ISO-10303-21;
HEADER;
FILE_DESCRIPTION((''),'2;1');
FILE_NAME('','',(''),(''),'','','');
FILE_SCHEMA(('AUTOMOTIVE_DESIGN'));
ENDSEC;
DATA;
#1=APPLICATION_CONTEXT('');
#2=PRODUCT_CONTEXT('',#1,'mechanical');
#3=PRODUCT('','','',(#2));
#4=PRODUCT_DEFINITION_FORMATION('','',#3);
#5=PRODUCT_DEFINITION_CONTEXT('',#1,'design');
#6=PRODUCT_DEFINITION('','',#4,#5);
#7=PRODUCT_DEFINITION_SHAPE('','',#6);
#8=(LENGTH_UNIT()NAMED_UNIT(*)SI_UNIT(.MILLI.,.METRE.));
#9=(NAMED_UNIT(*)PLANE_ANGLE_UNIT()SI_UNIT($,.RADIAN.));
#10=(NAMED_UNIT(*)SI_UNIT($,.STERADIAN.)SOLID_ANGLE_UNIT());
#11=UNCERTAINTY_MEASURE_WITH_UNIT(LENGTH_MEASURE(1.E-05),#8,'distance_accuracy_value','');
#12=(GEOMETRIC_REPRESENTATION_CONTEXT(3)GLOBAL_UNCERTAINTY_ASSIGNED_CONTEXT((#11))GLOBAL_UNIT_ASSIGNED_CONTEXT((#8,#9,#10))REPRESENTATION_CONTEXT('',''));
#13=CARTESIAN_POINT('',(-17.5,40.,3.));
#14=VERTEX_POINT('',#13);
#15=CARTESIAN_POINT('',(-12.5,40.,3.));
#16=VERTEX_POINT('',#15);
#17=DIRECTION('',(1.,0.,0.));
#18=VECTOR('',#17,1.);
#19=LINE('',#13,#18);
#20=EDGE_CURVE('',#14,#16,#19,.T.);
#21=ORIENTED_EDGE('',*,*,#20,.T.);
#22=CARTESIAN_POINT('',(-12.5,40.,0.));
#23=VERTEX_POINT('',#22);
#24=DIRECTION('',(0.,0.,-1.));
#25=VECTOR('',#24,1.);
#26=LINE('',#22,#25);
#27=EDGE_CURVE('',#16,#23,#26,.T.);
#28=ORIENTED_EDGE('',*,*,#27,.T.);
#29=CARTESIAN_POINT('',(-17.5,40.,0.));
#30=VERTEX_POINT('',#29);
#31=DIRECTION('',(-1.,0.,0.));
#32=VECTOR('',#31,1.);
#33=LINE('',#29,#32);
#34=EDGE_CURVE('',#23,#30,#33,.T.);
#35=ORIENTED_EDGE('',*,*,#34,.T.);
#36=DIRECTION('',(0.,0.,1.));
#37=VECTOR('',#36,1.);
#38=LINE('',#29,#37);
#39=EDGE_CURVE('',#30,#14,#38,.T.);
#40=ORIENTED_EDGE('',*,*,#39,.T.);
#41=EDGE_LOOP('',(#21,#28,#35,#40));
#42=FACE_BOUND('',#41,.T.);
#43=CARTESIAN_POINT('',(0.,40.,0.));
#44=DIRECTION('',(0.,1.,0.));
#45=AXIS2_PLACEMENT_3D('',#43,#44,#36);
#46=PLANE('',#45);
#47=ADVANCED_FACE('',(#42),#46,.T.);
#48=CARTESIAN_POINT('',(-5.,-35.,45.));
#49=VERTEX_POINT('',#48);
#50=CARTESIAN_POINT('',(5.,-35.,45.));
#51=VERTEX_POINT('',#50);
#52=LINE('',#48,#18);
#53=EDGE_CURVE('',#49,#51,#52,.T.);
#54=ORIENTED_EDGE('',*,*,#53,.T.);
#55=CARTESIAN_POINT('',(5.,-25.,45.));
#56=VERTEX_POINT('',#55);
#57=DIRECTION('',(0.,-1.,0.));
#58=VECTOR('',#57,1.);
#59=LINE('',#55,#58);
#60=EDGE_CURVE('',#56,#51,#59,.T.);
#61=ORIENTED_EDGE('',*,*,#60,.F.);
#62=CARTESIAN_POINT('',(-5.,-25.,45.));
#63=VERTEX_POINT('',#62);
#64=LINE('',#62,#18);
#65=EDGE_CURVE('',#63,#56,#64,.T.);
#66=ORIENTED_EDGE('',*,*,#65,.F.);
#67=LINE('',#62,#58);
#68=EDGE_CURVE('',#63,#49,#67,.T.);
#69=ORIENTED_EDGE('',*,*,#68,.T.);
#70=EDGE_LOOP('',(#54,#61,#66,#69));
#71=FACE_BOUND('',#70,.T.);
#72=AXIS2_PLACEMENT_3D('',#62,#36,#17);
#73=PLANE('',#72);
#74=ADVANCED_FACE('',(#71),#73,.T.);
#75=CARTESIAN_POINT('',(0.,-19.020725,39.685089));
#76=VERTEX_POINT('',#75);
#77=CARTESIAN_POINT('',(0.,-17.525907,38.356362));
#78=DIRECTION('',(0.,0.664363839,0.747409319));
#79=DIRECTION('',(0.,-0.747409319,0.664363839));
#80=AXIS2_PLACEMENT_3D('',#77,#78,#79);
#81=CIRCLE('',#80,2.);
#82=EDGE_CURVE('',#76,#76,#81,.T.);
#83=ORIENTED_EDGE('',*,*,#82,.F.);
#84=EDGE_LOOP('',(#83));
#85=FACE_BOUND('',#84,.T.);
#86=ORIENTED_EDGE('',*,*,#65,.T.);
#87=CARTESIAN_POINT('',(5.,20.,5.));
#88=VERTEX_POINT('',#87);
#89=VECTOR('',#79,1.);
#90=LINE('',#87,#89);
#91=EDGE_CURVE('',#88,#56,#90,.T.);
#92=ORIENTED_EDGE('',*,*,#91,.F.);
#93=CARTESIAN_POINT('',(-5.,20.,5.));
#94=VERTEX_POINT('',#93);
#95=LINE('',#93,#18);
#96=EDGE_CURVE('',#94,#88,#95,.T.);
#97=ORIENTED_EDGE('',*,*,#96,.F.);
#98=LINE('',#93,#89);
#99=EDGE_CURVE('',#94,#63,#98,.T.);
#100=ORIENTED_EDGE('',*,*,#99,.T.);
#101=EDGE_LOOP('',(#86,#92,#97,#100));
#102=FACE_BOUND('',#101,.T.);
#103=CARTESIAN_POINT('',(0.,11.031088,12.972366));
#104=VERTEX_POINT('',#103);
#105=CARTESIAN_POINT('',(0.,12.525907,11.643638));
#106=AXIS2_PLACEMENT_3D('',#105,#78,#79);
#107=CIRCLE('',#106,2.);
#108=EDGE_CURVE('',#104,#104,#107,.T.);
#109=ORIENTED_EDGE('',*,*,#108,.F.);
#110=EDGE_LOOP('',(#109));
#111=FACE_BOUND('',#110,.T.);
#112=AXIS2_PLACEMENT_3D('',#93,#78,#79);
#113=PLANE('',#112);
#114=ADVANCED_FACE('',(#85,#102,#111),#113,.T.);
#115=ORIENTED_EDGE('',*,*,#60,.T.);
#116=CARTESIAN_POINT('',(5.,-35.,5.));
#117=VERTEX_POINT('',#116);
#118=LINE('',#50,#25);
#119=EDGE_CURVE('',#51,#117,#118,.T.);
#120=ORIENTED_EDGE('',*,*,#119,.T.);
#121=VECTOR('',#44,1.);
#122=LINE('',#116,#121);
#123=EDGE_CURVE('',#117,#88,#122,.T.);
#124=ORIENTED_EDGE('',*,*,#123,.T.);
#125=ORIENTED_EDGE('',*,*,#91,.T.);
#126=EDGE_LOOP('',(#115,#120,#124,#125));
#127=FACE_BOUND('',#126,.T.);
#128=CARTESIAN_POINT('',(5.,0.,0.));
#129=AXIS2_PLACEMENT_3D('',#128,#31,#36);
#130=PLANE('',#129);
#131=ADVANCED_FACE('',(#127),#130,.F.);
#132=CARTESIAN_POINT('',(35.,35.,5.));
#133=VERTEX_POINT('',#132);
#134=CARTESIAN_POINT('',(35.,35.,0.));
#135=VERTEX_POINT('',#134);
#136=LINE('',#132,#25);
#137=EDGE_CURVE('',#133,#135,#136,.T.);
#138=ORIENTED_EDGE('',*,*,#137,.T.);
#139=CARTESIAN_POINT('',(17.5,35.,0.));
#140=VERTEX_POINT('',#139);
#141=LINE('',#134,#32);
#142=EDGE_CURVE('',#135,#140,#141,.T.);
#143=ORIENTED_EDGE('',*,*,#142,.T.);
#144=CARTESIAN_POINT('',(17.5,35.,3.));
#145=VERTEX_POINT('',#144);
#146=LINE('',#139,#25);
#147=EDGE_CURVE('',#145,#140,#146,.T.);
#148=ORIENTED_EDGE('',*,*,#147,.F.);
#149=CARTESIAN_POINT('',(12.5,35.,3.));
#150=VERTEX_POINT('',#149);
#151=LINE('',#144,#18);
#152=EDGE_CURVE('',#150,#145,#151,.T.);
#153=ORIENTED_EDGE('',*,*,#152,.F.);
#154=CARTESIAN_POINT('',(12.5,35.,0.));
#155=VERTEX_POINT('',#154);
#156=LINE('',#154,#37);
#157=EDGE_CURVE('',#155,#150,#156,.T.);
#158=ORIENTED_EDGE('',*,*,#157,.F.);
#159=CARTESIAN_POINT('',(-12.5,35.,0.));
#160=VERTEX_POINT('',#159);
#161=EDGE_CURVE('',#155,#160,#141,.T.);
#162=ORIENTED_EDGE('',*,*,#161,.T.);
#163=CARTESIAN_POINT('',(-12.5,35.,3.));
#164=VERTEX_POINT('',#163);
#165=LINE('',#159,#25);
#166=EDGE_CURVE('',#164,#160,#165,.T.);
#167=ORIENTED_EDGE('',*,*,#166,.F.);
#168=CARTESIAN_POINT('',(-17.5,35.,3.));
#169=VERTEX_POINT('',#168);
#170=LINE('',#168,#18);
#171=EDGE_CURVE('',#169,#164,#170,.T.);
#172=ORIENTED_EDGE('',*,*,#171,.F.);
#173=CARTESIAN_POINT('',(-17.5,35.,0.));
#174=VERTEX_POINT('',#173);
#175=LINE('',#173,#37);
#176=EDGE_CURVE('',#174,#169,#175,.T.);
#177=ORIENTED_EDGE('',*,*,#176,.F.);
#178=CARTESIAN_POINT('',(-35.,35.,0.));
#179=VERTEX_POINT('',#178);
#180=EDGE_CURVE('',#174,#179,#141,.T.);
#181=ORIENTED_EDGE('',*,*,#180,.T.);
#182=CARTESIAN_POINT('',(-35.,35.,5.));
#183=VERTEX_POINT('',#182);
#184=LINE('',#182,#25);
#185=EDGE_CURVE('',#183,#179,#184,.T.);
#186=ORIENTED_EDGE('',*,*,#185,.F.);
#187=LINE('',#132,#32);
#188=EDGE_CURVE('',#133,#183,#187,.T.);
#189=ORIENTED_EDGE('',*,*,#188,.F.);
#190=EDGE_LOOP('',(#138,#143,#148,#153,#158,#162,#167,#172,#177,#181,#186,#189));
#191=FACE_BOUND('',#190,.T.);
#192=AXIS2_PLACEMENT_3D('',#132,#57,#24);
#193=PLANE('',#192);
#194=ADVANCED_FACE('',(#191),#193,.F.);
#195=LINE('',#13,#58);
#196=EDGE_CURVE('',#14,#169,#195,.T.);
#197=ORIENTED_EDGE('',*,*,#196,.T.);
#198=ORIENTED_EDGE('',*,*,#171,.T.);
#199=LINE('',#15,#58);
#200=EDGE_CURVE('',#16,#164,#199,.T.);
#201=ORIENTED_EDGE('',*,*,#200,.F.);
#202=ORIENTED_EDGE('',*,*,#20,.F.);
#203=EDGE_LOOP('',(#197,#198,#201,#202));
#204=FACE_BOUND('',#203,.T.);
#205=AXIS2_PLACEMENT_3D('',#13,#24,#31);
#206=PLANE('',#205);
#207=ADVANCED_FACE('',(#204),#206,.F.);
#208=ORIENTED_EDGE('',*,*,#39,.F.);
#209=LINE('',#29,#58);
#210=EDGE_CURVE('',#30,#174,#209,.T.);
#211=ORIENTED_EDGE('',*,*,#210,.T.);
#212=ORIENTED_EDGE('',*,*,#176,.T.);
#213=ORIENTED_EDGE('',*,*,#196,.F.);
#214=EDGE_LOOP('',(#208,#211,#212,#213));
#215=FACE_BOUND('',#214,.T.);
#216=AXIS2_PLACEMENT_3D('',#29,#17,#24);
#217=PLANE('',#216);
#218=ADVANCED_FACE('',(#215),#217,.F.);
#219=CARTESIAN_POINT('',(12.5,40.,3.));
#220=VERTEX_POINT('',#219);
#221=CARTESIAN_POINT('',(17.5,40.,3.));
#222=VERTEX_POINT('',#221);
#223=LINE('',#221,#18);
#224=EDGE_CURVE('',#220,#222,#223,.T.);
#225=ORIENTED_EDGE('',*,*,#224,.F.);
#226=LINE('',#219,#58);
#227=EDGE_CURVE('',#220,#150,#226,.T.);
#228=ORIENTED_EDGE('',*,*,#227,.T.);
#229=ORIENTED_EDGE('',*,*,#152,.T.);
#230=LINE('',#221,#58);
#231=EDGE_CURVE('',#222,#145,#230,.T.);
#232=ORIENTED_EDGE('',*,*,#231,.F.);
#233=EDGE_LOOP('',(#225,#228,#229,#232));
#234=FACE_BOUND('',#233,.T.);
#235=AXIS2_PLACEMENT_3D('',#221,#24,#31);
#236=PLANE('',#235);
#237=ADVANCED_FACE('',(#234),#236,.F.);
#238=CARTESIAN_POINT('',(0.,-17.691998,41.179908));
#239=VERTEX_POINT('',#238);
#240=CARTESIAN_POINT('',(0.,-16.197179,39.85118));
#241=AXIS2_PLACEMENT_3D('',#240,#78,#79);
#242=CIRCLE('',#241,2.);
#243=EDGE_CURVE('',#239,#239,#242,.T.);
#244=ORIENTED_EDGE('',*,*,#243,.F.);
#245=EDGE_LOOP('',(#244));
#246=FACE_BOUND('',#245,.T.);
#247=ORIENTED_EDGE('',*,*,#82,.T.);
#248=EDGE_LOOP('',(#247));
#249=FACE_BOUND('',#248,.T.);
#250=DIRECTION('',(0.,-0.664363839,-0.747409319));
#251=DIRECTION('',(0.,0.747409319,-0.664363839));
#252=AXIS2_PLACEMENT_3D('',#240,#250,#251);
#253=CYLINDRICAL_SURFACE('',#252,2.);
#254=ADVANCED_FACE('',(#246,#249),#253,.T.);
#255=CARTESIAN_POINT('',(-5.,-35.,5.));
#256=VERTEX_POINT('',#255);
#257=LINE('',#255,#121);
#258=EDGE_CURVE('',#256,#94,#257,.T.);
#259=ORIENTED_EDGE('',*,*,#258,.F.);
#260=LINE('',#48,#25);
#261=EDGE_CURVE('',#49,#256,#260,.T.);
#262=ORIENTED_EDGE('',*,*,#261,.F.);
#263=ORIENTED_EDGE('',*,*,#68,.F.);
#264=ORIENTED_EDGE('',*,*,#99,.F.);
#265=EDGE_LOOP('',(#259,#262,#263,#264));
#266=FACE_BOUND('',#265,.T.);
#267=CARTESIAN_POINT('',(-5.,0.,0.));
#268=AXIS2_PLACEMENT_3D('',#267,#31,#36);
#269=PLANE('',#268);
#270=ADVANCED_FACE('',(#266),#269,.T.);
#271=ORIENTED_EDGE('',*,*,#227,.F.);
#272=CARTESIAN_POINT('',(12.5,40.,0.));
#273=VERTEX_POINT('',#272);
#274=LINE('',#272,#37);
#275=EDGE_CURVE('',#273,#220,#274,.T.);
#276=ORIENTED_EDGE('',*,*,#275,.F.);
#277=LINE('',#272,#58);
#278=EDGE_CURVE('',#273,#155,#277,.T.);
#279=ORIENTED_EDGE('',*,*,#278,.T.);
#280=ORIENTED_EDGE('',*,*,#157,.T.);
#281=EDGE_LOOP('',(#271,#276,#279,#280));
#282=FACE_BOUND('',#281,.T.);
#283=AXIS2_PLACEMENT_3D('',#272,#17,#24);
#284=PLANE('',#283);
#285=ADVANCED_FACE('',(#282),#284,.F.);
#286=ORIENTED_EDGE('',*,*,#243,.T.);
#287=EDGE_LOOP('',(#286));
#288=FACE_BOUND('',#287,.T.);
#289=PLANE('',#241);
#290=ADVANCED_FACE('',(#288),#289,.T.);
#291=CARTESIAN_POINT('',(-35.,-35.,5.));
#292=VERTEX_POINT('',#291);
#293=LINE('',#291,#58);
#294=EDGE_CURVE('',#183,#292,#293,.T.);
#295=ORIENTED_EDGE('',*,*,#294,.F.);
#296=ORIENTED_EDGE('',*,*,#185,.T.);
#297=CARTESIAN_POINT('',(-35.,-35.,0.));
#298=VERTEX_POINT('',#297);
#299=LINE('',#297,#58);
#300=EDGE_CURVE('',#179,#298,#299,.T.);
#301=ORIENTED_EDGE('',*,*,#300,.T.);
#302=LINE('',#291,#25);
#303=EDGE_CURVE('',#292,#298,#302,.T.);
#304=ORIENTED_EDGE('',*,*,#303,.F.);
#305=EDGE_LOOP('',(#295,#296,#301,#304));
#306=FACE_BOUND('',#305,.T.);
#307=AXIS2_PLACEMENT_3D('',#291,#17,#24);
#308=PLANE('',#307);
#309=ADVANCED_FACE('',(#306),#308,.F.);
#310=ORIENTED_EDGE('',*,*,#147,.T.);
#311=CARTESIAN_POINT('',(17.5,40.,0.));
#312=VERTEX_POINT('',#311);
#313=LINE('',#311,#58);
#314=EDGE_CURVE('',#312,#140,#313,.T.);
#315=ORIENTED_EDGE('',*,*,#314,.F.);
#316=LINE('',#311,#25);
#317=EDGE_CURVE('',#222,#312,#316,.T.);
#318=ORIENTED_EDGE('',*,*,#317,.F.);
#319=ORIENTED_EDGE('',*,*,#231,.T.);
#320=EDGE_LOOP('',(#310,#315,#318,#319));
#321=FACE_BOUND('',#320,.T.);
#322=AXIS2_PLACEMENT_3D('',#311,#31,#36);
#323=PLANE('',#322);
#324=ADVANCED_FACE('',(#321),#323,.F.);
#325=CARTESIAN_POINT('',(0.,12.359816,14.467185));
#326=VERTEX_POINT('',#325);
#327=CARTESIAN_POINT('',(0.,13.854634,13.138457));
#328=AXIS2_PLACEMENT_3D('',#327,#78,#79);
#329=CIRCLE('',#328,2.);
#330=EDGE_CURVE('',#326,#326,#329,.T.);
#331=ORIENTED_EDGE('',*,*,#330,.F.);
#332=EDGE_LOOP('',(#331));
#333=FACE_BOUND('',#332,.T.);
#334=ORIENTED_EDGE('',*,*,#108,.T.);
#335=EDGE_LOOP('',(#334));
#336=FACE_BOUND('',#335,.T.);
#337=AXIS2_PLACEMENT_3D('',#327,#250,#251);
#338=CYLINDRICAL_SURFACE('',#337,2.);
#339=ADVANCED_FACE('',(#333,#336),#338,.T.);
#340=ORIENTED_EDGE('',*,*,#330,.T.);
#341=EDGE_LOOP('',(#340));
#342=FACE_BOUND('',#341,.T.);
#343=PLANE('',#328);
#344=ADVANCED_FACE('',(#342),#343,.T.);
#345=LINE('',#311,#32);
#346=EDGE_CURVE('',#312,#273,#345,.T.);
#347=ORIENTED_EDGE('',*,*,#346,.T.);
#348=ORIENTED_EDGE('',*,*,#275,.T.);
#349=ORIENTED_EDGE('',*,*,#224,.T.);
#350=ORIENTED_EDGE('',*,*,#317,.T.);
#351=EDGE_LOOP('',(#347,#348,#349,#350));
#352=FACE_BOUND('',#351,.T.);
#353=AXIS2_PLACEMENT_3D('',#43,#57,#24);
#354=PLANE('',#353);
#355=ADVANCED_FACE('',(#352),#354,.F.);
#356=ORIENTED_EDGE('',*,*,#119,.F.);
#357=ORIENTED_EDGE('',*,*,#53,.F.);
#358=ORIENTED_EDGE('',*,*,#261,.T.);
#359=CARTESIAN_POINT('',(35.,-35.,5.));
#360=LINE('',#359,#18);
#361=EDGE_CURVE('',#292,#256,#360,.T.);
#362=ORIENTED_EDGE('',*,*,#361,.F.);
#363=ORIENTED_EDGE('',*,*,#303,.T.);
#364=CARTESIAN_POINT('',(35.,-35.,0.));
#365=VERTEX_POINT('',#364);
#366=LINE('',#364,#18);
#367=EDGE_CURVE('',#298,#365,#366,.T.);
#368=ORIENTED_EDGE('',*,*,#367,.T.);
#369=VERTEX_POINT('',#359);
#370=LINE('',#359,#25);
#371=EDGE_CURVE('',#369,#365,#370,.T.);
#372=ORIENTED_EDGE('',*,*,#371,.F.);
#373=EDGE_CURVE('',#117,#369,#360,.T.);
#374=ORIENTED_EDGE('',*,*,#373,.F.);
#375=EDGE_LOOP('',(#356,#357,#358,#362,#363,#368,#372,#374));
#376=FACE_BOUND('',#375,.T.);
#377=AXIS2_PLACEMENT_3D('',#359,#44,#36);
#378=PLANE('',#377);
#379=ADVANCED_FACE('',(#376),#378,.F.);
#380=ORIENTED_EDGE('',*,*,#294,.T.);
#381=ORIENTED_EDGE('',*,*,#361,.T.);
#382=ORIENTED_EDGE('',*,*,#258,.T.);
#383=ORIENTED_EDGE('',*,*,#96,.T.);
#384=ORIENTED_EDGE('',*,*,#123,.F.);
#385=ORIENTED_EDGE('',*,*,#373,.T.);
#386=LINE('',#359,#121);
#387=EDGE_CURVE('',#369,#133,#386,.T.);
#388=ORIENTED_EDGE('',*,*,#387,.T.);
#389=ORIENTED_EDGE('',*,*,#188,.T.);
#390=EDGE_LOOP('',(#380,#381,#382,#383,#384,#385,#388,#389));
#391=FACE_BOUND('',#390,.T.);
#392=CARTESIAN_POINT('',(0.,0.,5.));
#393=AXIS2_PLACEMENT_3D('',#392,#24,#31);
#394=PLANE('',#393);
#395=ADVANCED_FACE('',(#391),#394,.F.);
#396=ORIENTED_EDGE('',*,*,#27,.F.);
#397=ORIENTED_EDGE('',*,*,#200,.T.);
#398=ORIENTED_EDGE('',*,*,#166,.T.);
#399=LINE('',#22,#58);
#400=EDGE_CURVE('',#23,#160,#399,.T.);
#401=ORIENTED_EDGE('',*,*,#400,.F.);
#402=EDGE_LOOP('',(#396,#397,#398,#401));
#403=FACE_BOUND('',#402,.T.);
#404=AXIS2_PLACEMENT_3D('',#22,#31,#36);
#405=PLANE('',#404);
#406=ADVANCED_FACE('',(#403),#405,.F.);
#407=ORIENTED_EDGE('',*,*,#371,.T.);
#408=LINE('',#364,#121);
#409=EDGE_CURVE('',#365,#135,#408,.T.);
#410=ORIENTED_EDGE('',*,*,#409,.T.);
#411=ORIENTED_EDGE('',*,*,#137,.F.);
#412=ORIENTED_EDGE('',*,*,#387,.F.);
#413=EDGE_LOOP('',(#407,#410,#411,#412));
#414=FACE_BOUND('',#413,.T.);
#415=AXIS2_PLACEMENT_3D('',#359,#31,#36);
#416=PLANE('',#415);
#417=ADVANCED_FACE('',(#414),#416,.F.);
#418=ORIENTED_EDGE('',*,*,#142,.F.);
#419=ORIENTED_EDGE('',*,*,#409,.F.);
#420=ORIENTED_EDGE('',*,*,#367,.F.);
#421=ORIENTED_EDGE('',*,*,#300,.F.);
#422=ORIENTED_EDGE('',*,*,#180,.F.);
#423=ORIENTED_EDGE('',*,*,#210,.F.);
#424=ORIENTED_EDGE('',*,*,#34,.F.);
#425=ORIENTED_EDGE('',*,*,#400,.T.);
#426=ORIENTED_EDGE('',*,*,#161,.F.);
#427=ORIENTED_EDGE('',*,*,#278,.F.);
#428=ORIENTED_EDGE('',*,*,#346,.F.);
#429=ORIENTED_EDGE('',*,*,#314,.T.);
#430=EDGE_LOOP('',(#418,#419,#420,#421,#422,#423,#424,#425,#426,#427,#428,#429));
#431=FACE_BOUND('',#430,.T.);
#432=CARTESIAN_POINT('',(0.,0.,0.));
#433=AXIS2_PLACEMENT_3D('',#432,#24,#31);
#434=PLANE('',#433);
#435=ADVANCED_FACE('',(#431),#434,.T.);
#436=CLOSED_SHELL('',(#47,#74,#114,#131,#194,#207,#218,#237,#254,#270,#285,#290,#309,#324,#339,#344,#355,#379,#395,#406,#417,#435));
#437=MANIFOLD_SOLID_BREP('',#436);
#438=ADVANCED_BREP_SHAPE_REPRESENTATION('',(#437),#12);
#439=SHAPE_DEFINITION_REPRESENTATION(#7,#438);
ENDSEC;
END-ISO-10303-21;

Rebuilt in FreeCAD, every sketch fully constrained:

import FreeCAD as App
import Part
import Sketcher
from FreeCAD import Vector


def add_polygon(sketch, points):
    """Adds a closed chain of lines whose ends are joined by coincident constraints."""
    first, n = sketch.GeometryCount, len(points)
    for a, b in zip(points, points[1:] + points[:1]):
        sketch.addGeometry(Part.LineSegment(App.Vector(*a, 0), App.Vector(*b, 0)), False)
    for i in range(n):
        sketch.addConstraint(Sketcher.Constraint("Coincident", first + i, 2, first + (i + 1) % n, 1))

doc = App.newDocument("Part")
body = doc.addObject("PartDesign::Body", "Body")

sketch1 = body.newObject("Sketcher::SketchObject", "Sketch")
sketch1.AttachmentSupport = (doc.getObject("XY_Plane"), [""])
sketch1.MapMode = "FlatFace"
add_polygon(sketch1, [(-35, -35), (35, -35), (35, 35), (-35, 35)])
sketch1.addConstraint([
    Sketcher.Constraint("Horizontal", 0),
    Sketcher.Constraint("Vertical", 1),
    Sketcher.Constraint("Horizontal", 2),
    Sketcher.Constraint("Vertical", 3),
    Sketcher.Constraint("Symmetric", 0, 2, 2, 2, -1, 1),
    Sketcher.Constraint("Equal", 2, 1),
    Sketcher.Constraint("DistanceX", 0, 1, 0, 2, 70.0),
])
pad1 = body.newObject("PartDesign::Pad", "Pad")
pad1.Profile = sketch1
pad1.Length = 5

sketch2 = body.newObject("Sketcher::SketchObject", "Sketch001")
sketch2.AttachmentSupport = (doc.getObject("XZ_Plane"), [""])
sketch2.MapMode = "FlatFace"
sketch2.AttachmentOffset = App.Placement(Vector(0, 0, -35), App.Rotation())
add_polygon(sketch2, [(17.5, 3), (17.5, 0), (12.5, 0), (12.5, 3)])
add_polygon(sketch2, [(-12.5, 3), (-12.5, 0), (-17.5, 0), (-17.5, 3)])
sketch2.addConstraint([
    Sketcher.Constraint("Vertical", 0),
    Sketcher.Constraint("Horizontal", 1),
    Sketcher.Constraint("Vertical", 2),
    Sketcher.Constraint("Horizontal", 3),
    Sketcher.Constraint("Vertical", 4),
    Sketcher.Constraint("Horizontal", 5),
    Sketcher.Constraint("Vertical", 6),
    Sketcher.Constraint("Horizontal", 7),
    Sketcher.Constraint("Symmetric", 1, 2, 4, 2, -1, 1),
    Sketcher.Constraint("Symmetric", 0, 2, 5, 2, -2),
    Sketcher.Constraint("Horizontal", 3, 2, 6, 2),
    Sketcher.Constraint("DistanceX", 1, 2, 1, 1, 5.0),
    Sketcher.Constraint("DistanceY", 0, 2, 0, 1, 3.0),
    Sketcher.Constraint("DistanceX", 4, 2, 1, 2, 25.0),
])
pad2 = body.newObject("PartDesign::Pad", "Pad001")
pad2.Profile = sketch2
pad2.Length = 5
pad2.Reversed = True

sketch3 = body.newObject("Sketcher::SketchObject", "Sketch002")
sketch3.AttachmentSupport = (doc.getObject("YZ_Plane"), [""])
sketch3.MapMode = "FlatFace"
add_polygon(sketch3, [(20, 5), (-25, 45), (-35, 45), (-35, 5)])
sketch3.addConstraint([
    Sketcher.Constraint("Horizontal", 1),
    Sketcher.Constraint("Vertical", 2),
    Sketcher.Constraint("Horizontal", 3),
    Sketcher.Constraint("DistanceX", 1, 2, 1, 1, 10.0),
    Sketcher.Constraint("DistanceX", 3, 1, 3, 2, 55.0),
    Sketcher.Constraint("DistanceY", 2, 2, 2, 1, 40.0),
    Sketcher.Constraint("DistanceX", 0, 2, -1, 1, 25.0),
    Sketcher.Constraint("DistanceY", -1, 1, 0, 2, 45.0),
])
pad3 = body.newObject("PartDesign::Pad", "Pad002")
pad3.Profile = sketch3
pad3.Type = "TwoLengths"
pad3.Length = 5
pad3.Length2 = 5

sketch4 = body.newObject("Sketcher::SketchObject", "Sketch003")
sketch4.Placement = App.Placement(Vector(0, 11.310345, 12.724138), App.Rotation(Vector(1, 0, 0), Vector(0, 0.747409319, -0.664363839), Vector(0, 0.664363839, 0.747409319), "ZXY"))
sketch4.addGeometry([
    Part.Circle(Vector(0, 1.6, 0), Vector(0, 0, 1), 2),
    Part.Circle(Vector(0, -38.6, 0), Vector(0, 0, 1), 2),
], False)
sketch4.addConstraint([
    Sketcher.Constraint("Equal", 0, 1),
    Sketcher.Constraint("PointOnObject", 0, 3, -2),
    Sketcher.Constraint("PointOnObject", 1, 3, -2),
    Sketcher.Constraint("Diameter", 0, 4.0),
    Sketcher.Constraint("DistanceY", -1, 1, 0, 3, 1.626367),
    Sketcher.Constraint("DistanceY", 1, 3, -1, 1, 38.581606),
])
pad4 = body.newObject("PartDesign::Pad", "Pad003")
pad4.Profile = sketch4
pad4.Length = 2

doc.recompute()
